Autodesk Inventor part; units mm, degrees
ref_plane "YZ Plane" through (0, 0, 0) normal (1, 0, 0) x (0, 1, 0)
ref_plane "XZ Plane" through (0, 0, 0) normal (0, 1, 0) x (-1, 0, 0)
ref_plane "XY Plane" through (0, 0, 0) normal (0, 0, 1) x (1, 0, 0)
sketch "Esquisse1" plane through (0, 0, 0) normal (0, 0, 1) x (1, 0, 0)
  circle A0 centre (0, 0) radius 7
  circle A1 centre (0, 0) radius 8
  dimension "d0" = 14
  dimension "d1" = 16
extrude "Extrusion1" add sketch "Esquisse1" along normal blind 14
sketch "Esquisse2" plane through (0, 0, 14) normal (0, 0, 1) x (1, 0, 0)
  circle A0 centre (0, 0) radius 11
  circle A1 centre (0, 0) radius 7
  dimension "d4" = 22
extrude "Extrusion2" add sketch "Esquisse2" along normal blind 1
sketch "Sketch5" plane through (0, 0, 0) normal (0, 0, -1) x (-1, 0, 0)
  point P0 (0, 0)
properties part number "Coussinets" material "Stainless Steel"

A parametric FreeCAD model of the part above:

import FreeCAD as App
import Part
import Sketcher
from FreeCAD import Vector

doc = App.newDocument("Part")
params = doc.addObject("Spreadsheet::Sheet", "Params")
for row, (alias, value) in enumerate([
    ("sketch1_diameter", "16 mm"),
    ("sketch1_diameter2", "14 mm"),
    ("pad1_length", "14 mm"),
    ("sketch2_diameter", "22 mm"),
    ("sketch2_diameter2", "14 mm"),
    ("pad2_length", "1 mm"),
], start=1):
    params.set(f"A{row}", alias)
    params.set(f"B{row}", "=" + value)
    params.setAlias(f"B{row}", alias)

body = doc.addObject("PartDesign::Body", "Body")

# Sketch on XY plane
sketch1 = doc.addObject("Sketcher::SketchObject", "Sketch")
body.addObject(sketch1)
sketch1.AttachmentSupport = (doc.XY_Plane, [""])
sketch1.MapMode = "FlatFace"
sketch1.addGeometry([
    Part.Circle(Vector(0, 0, 0), Vector(0, 0, 1), 8),
    Part.Circle(Vector(0, 0, 0), Vector(0, 0, 1), 7),
], False)
sketch1.addConstraint([
    Sketcher.Constraint("Coincident", 0, 3, -1, 1),
    Sketcher.Constraint("Coincident", 1, 3, -1, 1),
    Sketcher.Constraint("Diameter", 0, 16.0),
    Sketcher.Constraint("Diameter", 1, 14.0),
])
sketch1.setExpression("Constraints[2]", "Params.sketch1_diameter")
sketch1.setExpression("Constraints[3]", "Params.sketch1_diameter2")
pad1 = doc.addObject("PartDesign::Pad", "Pad")
body.addObject(pad1)
pad1.Profile = sketch1
pad1.setExpression("Length", "Params.pad1_length")

# Sketch on XY plane
sketch2 = doc.addObject("Sketcher::SketchObject", "Sketch001")
body.addObject(sketch2)
sketch2.AttachmentSupport = (doc.XY_Plane, [""])
sketch2.MapMode = "FlatFace"
sketch2.AttachmentOffset = App.Placement(Vector(0, 0, 14), App.Rotation())
sketch2.addGeometry([
    Part.Circle(Vector(0, 0, 0), Vector(0, 0, 1), 11),
    Part.Circle(Vector(0, 0, 0), Vector(0, 0, 1), 7),
], False)
sketch2.addConstraint([
    Sketcher.Constraint("Coincident", 0, 3, -1, 1),
    Sketcher.Constraint("Coincident", 1, 3, -1, 1),
    Sketcher.Constraint("Diameter", 0, 22.0),
    Sketcher.Constraint("Diameter", 1, 14.0),
])
sketch2.setExpression("Constraints[2]", "Params.sketch2_diameter")
sketch2.setExpression("Constraints[3]", "Params.sketch2_diameter2")
pad2 = doc.addObject("PartDesign::Pad", "Pad001")
body.addObject(pad2)
pad2.Profile = sketch2
pad2.setExpression("Length", "Params.pad2_length")

doc.recompute()
